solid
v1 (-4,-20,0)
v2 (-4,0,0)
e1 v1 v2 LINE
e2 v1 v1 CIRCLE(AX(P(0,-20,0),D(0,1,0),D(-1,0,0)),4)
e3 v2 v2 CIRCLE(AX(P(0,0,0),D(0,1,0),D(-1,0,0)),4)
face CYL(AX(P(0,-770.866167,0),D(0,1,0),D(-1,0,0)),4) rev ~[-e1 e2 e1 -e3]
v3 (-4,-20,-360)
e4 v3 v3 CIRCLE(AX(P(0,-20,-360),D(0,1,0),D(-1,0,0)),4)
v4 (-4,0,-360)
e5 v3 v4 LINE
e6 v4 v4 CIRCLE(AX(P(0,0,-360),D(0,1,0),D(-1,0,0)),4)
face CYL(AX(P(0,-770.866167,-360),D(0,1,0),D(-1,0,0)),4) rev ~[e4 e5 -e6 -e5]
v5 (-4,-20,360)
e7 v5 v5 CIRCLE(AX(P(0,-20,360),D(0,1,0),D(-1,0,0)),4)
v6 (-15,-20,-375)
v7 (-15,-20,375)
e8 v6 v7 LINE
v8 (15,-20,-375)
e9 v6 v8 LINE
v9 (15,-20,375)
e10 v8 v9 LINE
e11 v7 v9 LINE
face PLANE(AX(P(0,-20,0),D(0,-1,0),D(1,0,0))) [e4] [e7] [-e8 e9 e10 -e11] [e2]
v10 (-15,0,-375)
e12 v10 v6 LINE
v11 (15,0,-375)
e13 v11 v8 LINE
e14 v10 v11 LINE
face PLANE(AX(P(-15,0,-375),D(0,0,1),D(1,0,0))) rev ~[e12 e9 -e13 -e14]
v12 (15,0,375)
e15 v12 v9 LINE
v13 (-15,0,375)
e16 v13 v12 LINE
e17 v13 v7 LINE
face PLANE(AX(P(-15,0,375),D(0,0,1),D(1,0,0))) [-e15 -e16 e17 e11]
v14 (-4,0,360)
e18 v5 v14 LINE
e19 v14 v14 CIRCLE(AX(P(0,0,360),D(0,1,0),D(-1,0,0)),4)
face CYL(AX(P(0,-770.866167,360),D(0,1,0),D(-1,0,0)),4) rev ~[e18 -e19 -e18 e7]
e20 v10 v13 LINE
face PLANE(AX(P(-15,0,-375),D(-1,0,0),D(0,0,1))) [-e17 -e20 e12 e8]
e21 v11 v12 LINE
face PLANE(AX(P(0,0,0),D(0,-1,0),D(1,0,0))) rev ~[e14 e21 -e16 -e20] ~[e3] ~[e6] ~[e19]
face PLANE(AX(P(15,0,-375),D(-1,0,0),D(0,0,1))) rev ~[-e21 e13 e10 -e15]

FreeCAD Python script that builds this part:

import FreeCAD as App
import Part
import Sketcher
Q = App.Units.Quantity

doc = App.newDocument("Part")
body = doc.addObject("PartDesign::Body", "Body")

# Sketch on XZ plane
sketch1 = body.newObject("Sketcher::SketchObject", "Sketch")
sketch1.AttachmentSupport = (doc.getObject("XZ_Plane"), [""])
sketch1.MapMode = "FlatFace"
sketch1.addGeometry(Part.LineSegment(App.Vector(-15, 375, 0), App.Vector(-15, -375, 0)), False)
sketch1.addGeometry(Part.LineSegment(App.Vector(-15, -375, 0), App.Vector(15, -375, 0)), False)
sketch1.addGeometry(Part.LineSegment(App.Vector(15, -375, 0), App.Vector(15, 375, 0)), False)
sketch1.addGeometry(Part.LineSegment(App.Vector(15, 375, 0), App.Vector(-15, 375, 0)), False)
sketch1.addConstraint(Sketcher.Constraint("Coincident", 0, 2, 1, 1))
sketch1.addConstraint(Sketcher.Constraint("Coincident", 1, 2, 2, 1))
sketch1.addConstraint(Sketcher.Constraint("Coincident", 2, 2, 3, 1))
sketch1.addConstraint(Sketcher.Constraint("Coincident", 3, 2, 0, 1))
sketch1.addConstraint(Sketcher.Constraint("Vertical", 0))
sketch1.addConstraint(Sketcher.Constraint("Horizontal", 1))
sketch1.addConstraint(Sketcher.Constraint("Vertical", 2))
sketch1.addConstraint(Sketcher.Constraint("Horizontal", 3))
sketch1.addConstraint(Sketcher.Constraint("Symmetric", 0, 2, 2, 2, -1, 1))
sketch1.addConstraint(Sketcher.Constraint("DistanceX", 1, 1, 1, 2, Q("30 mm")))
sketch1.addConstraint(Sketcher.Constraint("DistanceY", 0, 2, 0, 1, Q("750 mm")))
pad1 = body.newObject("PartDesign::Pad", "Pad")
pad1.Profile = sketch1
pad1.Length = 20

# Sketch on XZ plane
sketch2 = body.newObject("Sketcher::SketchObject", "Sketch001")
sketch2.AttachmentSupport = (doc.getObject("XZ_Plane"), [""])
sketch2.MapMode = "FlatFace"
sketch2.AttachmentOffset = App.Placement(App.Vector(0, 0, 20), App.Rotation())
sketch2.addGeometry(Part.Circle(App.Vector(0, 360, 0), App.Vector(0, 0, 1), 4), False)
sketch2.addGeometry(Part.Circle(App.Vector(0, -360, 0), App.Vector(0, 0, 1), 4), False)
sketch2.addConstraint(Sketcher.Constraint("Equal", 0, 1))
sketch2.addConstraint(Sketcher.Constraint("Symmetric", 0, 3, 1, 3, -1, 1))
sketch2.addConstraint(Sketcher.Constraint("PointOnObject", 0, 3, -2))
sketch2.addConstraint(Sketcher.Constraint("Diameter", 0, Q("8 mm")))
sketch2.addConstraint(Sketcher.Constraint("DistanceY", -1, 1, 0, 3, Q("360 mm")))
doc.recompute()
hole = body.newObject("PartDesign::Hole", "Hole")
hole.Profile = sketch2
hole.ThreadType = "None"
hole.Diameter = 8
hole.DepthType = "ThroughAll"

# Sketch on XZ plane
sketch3 = body.newObject("Sketcher::SketchObject", "Sketch002")
sketch3.AttachmentSupport = (doc.getObject("XZ_Plane"), [""])
sketch3.MapMode = "FlatFace"
sketch3.AttachmentOffset = App.Placement(App.Vector(0, 0, 20), App.Rotation())
sketch3.addGeometry(Part.Circle(App.Vector(0, 0, 0), App.Vector(0, 0, 1), 4), False)
sketch3.addConstraint(Sketcher.Constraint("Coincident", 0, 3, -1, 1))
sketch3.addConstraint(Sketcher.Constraint("Diameter", 0, Q("8 mm")))
doc.recompute()
hole2 = body.newObject("PartDesign::Hole", "Hole001")
hole2.Profile = sketch3
hole2.ThreadType = "None"
hole2.Diameter = 8
hole2.DepthType = "ThroughAll"

doc.recompute()
